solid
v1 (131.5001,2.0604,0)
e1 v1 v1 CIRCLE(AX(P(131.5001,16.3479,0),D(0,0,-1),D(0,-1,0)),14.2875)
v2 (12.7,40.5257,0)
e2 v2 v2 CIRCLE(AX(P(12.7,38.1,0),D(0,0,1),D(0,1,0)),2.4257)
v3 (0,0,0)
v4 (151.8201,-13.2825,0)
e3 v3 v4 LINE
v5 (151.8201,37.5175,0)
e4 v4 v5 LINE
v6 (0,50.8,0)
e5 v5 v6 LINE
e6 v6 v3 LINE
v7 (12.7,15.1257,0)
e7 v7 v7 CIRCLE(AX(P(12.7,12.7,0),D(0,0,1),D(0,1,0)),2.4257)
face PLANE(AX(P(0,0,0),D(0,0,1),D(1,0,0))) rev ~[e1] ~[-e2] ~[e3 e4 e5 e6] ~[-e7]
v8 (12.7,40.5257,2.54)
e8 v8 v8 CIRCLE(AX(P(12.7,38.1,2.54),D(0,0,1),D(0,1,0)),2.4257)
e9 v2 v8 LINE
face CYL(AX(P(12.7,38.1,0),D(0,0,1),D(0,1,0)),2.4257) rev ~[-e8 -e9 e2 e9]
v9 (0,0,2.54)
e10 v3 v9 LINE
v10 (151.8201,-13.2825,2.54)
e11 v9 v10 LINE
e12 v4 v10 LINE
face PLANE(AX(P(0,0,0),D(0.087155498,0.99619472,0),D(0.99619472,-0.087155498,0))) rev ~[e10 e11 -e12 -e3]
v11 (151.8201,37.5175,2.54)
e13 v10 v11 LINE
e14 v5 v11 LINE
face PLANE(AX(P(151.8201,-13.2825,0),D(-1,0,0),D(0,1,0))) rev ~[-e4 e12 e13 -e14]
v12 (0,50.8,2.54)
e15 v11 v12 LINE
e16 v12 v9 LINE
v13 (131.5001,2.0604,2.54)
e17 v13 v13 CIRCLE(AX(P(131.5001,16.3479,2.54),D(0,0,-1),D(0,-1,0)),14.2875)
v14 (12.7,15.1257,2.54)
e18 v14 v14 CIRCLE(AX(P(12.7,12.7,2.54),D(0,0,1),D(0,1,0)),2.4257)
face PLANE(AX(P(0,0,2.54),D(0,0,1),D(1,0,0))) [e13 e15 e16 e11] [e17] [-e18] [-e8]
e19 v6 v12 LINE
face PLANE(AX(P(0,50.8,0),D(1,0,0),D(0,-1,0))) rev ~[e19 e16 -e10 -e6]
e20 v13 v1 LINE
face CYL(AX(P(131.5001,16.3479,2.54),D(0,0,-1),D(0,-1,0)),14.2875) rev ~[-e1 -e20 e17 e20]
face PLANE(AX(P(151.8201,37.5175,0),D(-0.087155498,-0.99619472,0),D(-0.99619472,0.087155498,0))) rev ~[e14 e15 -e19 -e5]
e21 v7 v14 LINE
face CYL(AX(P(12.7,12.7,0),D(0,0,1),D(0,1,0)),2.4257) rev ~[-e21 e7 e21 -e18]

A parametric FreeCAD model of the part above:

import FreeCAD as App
import Part
import Sketcher
Q = App.Units.Quantity

doc = App.newDocument("Part")
body = doc.addObject("PartDesign::Body", "Body")

# Sketch on XY plane
sketch1 = doc.addObject("Sketcher::SketchObject", "Sketch")
body.addObject(sketch1)
sketch1.AttachmentSupport = (doc.XY_Plane, [""])
sketch1.MapMode = "FlatFace"
sketch1.addGeometry([
    Part.LineSegment(App.Vector(0, 50.8, 0), App.Vector(0, 0, 0)),
    Part.LineSegment(App.Vector(0, 0, 0), App.Vector(151.8201, -13.2825, 0)),
    Part.LineSegment(App.Vector(151.8201, -13.2825, 0), App.Vector(151.8201, 37.5175, 0)),
    Part.LineSegment(App.Vector(151.8201, 37.5175, 0), App.Vector(0, 50.8, 0)),
], False)
sketch1.addConstraint([
    Sketcher.Constraint("Coincident", 0, 2, 1, 1),
    Sketcher.Constraint("Coincident", 1, 2, 2, 1),
    Sketcher.Constraint("Coincident", 2, 2, 3, 1),
    Sketcher.Constraint("Coincident", 3, 2, 0, 1),
    Sketcher.Constraint("Vertical", 0),
    Sketcher.Constraint("Vertical", 2),
    Sketcher.Constraint("Coincident", 0, 2, -1, 1),
    Sketcher.Constraint("Parallel", 1, 3),
    Sketcher.Constraint("DistanceY", 0, 2, 0, 1, Q("2 in")),
    Sketcher.Constraint("Distance", 1, Q("6 in")),
    Sketcher.Constraint("Angle", 1, Q("-5 deg")),
])
pad1 = doc.addObject("PartDesign::Pad", "Pad")
body.addObject(pad1)
pad1.Profile = sketch1
pad1.Length = Q("0.1 in")

# Sketch on XY plane
sketch2 = doc.addObject("Sketcher::SketchObject", "Sketch001")
body.addObject(sketch2)
sketch2.AttachmentSupport = (doc.XY_Plane, [""])
sketch2.MapMode = "FlatFace"
sketch2.AttachmentOffset = App.Placement(App.Vector(0, 0, 0.1 * 25.4), App.Rotation())
sketch2.addGeometry(Part.Circle(App.Vector(131.5001, 16.3479, 0), App.Vector(0, 0, 1), 14.2875), False)
sketch2.addConstraint([
    Sketcher.Constraint("Diameter", 0, Q("1.125 in")),
    Sketcher.Constraint("DistanceX", -1, 1, 0, 3, 131.5),
    Sketcher.Constraint("DistanceY", -1, 1, 0, 3, 16.348),
])
doc.recompute()
hole = doc.addObject("PartDesign::Hole", "Hole")
body.addObject(hole)
hole.Profile = sketch2
hole.ThreadType = "None"
hole.Diameter = Q("1.125 in")
hole.DepthType = "ThroughAll"

# Sketch on XY plane
sketch3 = doc.addObject("Sketcher::SketchObject", "Sketch002")
body.addObject(sketch3)
sketch3.AttachmentSupport = (doc.XY_Plane, [""])
sketch3.MapMode = "FlatFace"
sketch3.addGeometry([
    Part.Circle(App.Vector(12.7, 38.1, 0), App.Vector(0, 0, 1), 2.4257),
    Part.Circle(App.Vector(12.7, 12.7, 0), App.Vector(0, 0, 1), 2.4257),
], False)
sketch3.addConstraint([
    Sketcher.Constraint("Equal", 0, 1),
    Sketcher.Constraint("Vertical", 0, 3, 1, 3),
    Sketcher.Constraint("Diameter", 0, Q("0.191 in")),
    Sketcher.Constraint("DistanceY", 1, 3, 0, 3, Q("1 in")),
    Sketcher.Constraint("DistanceX", -1, 1, 0, 3, Q("0.5 in")),
    Sketcher.Constraint("DistanceY", -1, 1, 0, 3, Q("1.5 in")),
])
doc.recompute()
hole2 = doc.addObject("PartDesign::Hole", "Hole001")
body.addObject(hole2)
hole2.Profile = sketch3
hole2.ThreadType = "None"
hole2.Diameter = Q("0.191 in")
hole2.DepthType = "ThroughAll"
hole2.Reversed = True

doc.recompute()
